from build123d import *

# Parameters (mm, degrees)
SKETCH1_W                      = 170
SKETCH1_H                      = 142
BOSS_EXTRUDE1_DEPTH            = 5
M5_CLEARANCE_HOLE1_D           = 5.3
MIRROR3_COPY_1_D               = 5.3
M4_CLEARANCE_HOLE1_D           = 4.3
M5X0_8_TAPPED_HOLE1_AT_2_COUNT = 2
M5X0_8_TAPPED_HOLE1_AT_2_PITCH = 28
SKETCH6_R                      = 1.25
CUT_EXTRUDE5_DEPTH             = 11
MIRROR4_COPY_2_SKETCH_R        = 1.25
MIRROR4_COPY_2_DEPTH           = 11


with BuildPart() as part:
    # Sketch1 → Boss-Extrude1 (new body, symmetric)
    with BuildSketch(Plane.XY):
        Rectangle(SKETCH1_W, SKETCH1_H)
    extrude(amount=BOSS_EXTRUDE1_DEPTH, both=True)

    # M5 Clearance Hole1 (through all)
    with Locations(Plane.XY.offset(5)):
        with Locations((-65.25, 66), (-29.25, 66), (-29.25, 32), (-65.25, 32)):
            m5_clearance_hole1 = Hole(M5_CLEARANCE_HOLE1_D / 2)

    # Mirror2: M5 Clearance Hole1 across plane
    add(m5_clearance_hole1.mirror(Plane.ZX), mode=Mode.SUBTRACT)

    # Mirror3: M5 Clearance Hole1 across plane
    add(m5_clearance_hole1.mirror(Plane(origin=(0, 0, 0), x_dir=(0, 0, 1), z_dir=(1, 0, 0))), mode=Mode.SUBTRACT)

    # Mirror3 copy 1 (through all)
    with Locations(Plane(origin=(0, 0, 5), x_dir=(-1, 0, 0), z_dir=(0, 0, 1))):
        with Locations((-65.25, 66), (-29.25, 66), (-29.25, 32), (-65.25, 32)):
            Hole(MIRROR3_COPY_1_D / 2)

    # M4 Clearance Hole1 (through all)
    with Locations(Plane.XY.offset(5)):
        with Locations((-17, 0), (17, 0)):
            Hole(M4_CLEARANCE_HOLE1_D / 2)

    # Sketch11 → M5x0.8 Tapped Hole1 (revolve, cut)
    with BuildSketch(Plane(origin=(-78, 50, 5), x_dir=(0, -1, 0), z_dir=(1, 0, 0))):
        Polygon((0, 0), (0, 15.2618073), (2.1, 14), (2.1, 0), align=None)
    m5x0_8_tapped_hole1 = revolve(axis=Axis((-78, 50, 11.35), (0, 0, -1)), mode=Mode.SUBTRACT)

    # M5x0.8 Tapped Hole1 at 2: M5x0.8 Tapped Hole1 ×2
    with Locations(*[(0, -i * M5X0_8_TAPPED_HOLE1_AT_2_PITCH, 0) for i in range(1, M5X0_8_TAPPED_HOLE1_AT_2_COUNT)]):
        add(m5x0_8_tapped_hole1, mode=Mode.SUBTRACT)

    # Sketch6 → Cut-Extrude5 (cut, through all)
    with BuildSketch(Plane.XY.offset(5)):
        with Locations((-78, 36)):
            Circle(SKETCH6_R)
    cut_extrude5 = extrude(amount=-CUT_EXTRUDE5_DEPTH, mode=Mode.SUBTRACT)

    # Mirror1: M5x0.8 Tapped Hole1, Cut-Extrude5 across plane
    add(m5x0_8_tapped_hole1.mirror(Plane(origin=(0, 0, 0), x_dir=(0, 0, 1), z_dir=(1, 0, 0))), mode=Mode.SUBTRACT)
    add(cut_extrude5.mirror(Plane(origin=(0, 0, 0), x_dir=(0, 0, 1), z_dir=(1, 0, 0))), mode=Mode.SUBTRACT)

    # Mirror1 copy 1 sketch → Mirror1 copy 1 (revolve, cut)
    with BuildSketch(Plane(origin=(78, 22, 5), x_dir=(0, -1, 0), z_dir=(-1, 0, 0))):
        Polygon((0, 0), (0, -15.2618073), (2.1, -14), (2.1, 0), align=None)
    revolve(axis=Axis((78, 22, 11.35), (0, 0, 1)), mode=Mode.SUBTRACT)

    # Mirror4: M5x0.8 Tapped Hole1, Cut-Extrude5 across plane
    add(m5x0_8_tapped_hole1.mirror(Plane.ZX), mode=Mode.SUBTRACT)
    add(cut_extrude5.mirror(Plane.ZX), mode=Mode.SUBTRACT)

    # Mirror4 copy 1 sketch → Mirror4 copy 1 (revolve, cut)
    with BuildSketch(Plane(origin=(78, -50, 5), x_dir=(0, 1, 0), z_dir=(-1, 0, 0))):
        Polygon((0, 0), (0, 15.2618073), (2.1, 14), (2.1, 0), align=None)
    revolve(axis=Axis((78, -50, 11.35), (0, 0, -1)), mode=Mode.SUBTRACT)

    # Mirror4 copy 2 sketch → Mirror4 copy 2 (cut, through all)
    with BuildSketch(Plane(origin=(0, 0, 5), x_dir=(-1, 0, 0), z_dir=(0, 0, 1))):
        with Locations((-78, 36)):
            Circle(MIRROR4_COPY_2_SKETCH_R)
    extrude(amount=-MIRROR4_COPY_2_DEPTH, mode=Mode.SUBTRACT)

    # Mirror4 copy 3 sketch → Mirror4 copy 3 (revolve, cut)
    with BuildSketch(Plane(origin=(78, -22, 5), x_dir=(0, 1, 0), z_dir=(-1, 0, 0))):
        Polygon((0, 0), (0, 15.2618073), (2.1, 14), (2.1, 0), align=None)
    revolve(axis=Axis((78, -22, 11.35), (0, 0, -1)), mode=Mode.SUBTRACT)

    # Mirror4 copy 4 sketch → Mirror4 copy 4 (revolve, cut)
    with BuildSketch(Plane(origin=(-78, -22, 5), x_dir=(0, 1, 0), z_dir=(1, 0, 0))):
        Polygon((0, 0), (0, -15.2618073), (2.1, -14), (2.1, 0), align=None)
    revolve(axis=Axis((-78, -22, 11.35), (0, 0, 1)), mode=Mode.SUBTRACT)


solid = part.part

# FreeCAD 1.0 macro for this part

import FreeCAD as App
import Part
import Sketcher

V = App.Vector
Q = App.Units.Quantity

doc = App.newDocument("Part")
body = doc.addObject("PartDesign::Body", "Body")

sketch1 = doc.addObject("Sketcher::SketchObject", "Sketch")
body.addObject(sketch1)
sketch1.AttachmentSupport = (doc.XY_Plane, [""])
sketch1.MapMode = "FlatFace"
sketch1.addGeometry([
    Part.LineSegment(V(-85, 71, 0), V(-85, -71, 0)),
    Part.LineSegment(V(-85, -71, 0), V(85, -71, 0)),
    Part.LineSegment(V(85, -71, 0), V(85, 71, 0)),
    Part.LineSegment(V(85, 71, 0), V(-85, 71, 0)),
], False)
sketch1.addConstraint([
    Sketcher.Constraint("Coincident", 0, 2, 1, 1),
    Sketcher.Constraint("Coincident", 1, 2, 2, 1),
    Sketcher.Constraint("Coincident", 2, 2, 3, 1),
    Sketcher.Constraint("Coincident", 3, 2, 0, 1),
    Sketcher.Constraint("Vertical", 0),
    Sketcher.Constraint("Horizontal", 1),
    Sketcher.Constraint("Vertical", 2),
    Sketcher.Constraint("Horizontal", 3),
    Sketcher.Constraint("Symmetric", 0, 2, 2, 2, -1, 1),
    Sketcher.Constraint("DistanceX", 1, 1, 1, 2, Q("170 mm")),
    Sketcher.Constraint("DistanceY", 0, 2, 0, 1, Q("142 mm")),
])
pad1 = doc.addObject("PartDesign::Pad", "Pad")
body.addObject(pad1)
pad1.Profile = sketch1
pad1.Length = 10
pad1.Midplane = True

sketch2 = doc.addObject("Sketcher::SketchObject", "Sketch001")
body.addObject(sketch2)
sketch2.AttachmentSupport = (doc.XY_Plane, [""])
sketch2.MapMode = "FlatFace"
sketch2.AttachmentOffset = App.Placement(V(0, 0, 5), App.Rotation())
sketch2.addGeometry([
    Part.Circle(V(-65.25, 66, 0), V(0, 0, 1), 2.65),
    Part.Circle(V(-29.25, 66, 0), V(0, 0, 1), 2.65),
    Part.Circle(V(-29.25, 32, 0), V(0, 0, 1), 2.65),
    Part.Circle(V(-65.25, 32, 0), V(0, 0, 1), 2.65),
], False)
sketch2.addConstraint([
    Sketcher.Constraint("Equal", 0, 1),
    Sketcher.Constraint("Equal", 1, 2),
    Sketcher.Constraint("Equal", 2, 3),
    Sketcher.Constraint("Horizontal", 0, 3, 1, 3),
    Sketcher.Constraint("Horizontal", 2, 3, 3, 3),
    Sketcher.Constraint("Vertical", 1, 3, 2, 3),
    Sketcher.Constraint("Vertical", 0, 3, 3, 3),
    Sketcher.Constraint("Diameter", 0, Q("5.3 mm")),
    Sketcher.Constraint("DistanceY", -1, 1, 0, 3, Q("66 mm")),
    Sketcher.Constraint("DistanceY", -1, 1, 2, 3, Q("32 mm")),
    Sketcher.Constraint("DistanceX", 0, 3, 1, 3, Q("36 mm")),
    Sketcher.Constraint("DistanceX", 0, 3, -1, 1, Q("65.25 mm")),
])
doc.recompute()
hole = doc.addObject("PartDesign::Hole", "Hole")
body.addObject(hole)
hole.Profile = sketch2
hole.ThreadType = "None"
hole.Diameter = 5.3
hole.DepthType = "ThroughAll"
doc.recompute()

mirrored = doc.addObject("PartDesign::Mirrored", "Mirrored")
body.addObject(mirrored)
mirrored.Originals = [hole]
mirrored.MirrorPlane = (doc.XZ_Plane, [""])
body.Tip = mirrored
doc.recompute()

mirrored2 = doc.addObject("PartDesign::Mirrored", "Mirrored001")
body.addObject(mirrored2)
mirrored2.Originals = [hole]
mirrored2.MirrorPlane = (doc.YZ_Plane, [""])
body.Tip = mirrored2

sketch3 = doc.addObject("Sketcher::SketchObject", "Sketch002")
body.addObject(sketch3)
sketch3.AttachmentSupport = (doc.XY_Plane, [""])
sketch3.MapMode = "FlatFace"
sketch3.AttachmentOffset = App.Placement(V(0, 0, 5), App.Rotation())
sketch3.addGeometry([
    Part.Circle(V(65.25, -66, 0), V(0, 0, 1), 2.65),
    Part.Circle(V(29.25, -66, 0), V(0, 0, 1), 2.65),
    Part.Circle(V(29.25, -32, 0), V(0, 0, 1), 2.65),
    Part.Circle(V(65.25, -32, 0), V(0, 0, 1), 2.65),
], False)
sketch3.addConstraint([
    Sketcher.Constraint("Equal", 0, 1),
    Sketcher.Constraint("Equal", 1, 2),
    Sketcher.Constraint("Equal", 2, 3),
    Sketcher.Constraint("Horizontal", 0, 3, 1, 3),
    Sketcher.Constraint("Horizontal", 2, 3, 3, 3),
    Sketcher.Constraint("Vertical", 1, 3, 2, 3),
    Sketcher.Constraint("Vertical", 0, 3, 3, 3),
    Sketcher.Constraint("Diameter", 0, Q("5.3 mm")),
    Sketcher.Constraint("DistanceY", 0, 3, -1, 1, Q("66 mm")),
    Sketcher.Constraint("DistanceY", 2, 3, -1, 1, Q("32 mm")),
    Sketcher.Constraint("DistanceX", 1, 3, 0, 3, Q("36 mm")),
    Sketcher.Constraint("DistanceX", -1, 1, 0, 3, Q("65.25 mm")),
])
doc.recompute()
hole2 = doc.addObject("PartDesign::Hole", "Hole001")
body.addObject(hole2)
hole2.Profile = sketch3
hole2.ThreadType = "None"
hole2.Diameter = 5.3
hole2.DepthType = "ThroughAll"

sketch4 = doc.addObject("Sketcher::SketchObject", "Sketch003")
body.addObject(sketch4)
sketch4.AttachmentSupport = (doc.XY_Plane, [""])
sketch4.MapMode = "FlatFace"
sketch4.AttachmentOffset = App.Placement(V(0, 0, 5), App.Rotation())
sketch4.addGeometry([
    Part.Circle(V(-17, 0, 0), V(0, 0, 1), 2.15),
    Part.Circle(V(17, 0, 0), V(0, 0, 1), 2.15),
], False)
sketch4.addConstraint([
    Sketcher.Constraint("Equal", 0, 1),
    Sketcher.Constraint("Symmetric", 0, 3, 1, 3, -1, 1),
    Sketcher.Constraint("PointOnObject", 0, 3, -1),
    Sketcher.Constraint("Diameter", 0, Q("4.3 mm")),
    Sketcher.Constraint("DistanceX", 0, 3, -1, 1, Q("17 mm")),
])
doc.recompute()
hole3 = doc.addObject("PartDesign::Hole", "Hole002")
body.addObject(hole3)
hole3.Profile = sketch4
hole3.ThreadType = "None"
hole3.Diameter = 4.3
hole3.DepthType = "ThroughAll"

sketch5 = doc.addObject("Sketcher::SketchObject", "Sketch004")
body.addObject(sketch5)
sketch5.AttachmentSupport = (doc.YZ_Plane, [""])
sketch5.MapMode = "FlatFace"
sketch5.AttachmentOffset = App.Placement(V(0, 0, -78), App.Rotation())
sketch5.addGeometry([
    Part.LineSegment(V(50, -10.261807, 0), V(50, 5, 0)),
    Part.LineSegment(V(50, 5, 0), V(47.9, 5, 0)),
    Part.LineSegment(V(47.9, 5, 0), V(47.9, -9, 0)),
    Part.LineSegment(V(47.9, -9, 0), V(50, -10.261807, 0)),
], False)
sketch5.addGeometry(Part.LineSegment(V(50, 5, 0), V(50, -10.261807, 0)), True)
sketch5.addConstraint([
    Sketcher.Constraint("Coincident", 0, 2, 1, 1),
    Sketcher.Constraint("Coincident", 1, 2, 2, 1),
    Sketcher.Constraint("Coincident", 2, 2, 3, 1),
    Sketcher.Constraint("Coincident", 3, 2, 0, 1),
    Sketcher.Constraint("Vertical", 0),
    Sketcher.Constraint("Horizontal", 1),
    Sketcher.Constraint("Vertical", 2),
    Sketcher.Constraint("Vertical", 4),
    Sketcher.Constraint("Coincident", 4, 1, 0, 2),
    Sketcher.Constraint("Equal", 0, 4),
    Sketcher.Constraint("DistanceY", 2, 2, 2, 1, Q("14 mm")),
    Sketcher.Constraint("Angle", 3, Q("-31 deg")),
    Sketcher.Constraint("DistanceX", 1, 2, 1, 1, Q("2.1 mm")),
    Sketcher.Constraint("DistanceX", -1, 1, 0, 2, Q("50 mm")),
    Sketcher.Constraint("DistanceY", -1, 1, 0, 2, Q("5 mm")),
])
groove = doc.addObject("PartDesign::Groove", "Groove")
body.addObject(groove)
groove.Profile = sketch5
groove.ReferenceAxis = (sketch5, ["Axis0"])
groove.Angle = 360
doc.recompute()

linearpattern = doc.addObject("PartDesign::LinearPattern", "LinearPattern")
body.addObject(linearpattern)
linearpattern.Originals = [groove]
linearpattern.Direction = (doc.Y_Axis, [""])
linearpattern.Mode = "offset"
linearpattern.Offset = 28
linearpattern.Occurrences = 2
linearpattern.Reversed = True
body.Tip = linearpattern

sketch6 = doc.addObject("Sketcher::SketchObject", "Sketch005")
body.addObject(sketch6)
sketch6.AttachmentSupport = (doc.XY_Plane, [""])
sketch6.MapMode = "FlatFace"
sketch6.AttachmentOffset = App.Placement(V(0, 0, 5), App.Rotation())
sketch6.addGeometry(Part.Circle(V(-78, 36, 0), V(0, 0, 1), 1.25), False)
sketch6.addConstraint([
    Sketcher.Constraint("Diameter", 0, Q("2.5 mm")),
    Sketcher.Constraint("DistanceX", 0, 3, -1, 1, Q("78 mm")),
    Sketcher.Constraint("DistanceY", -1, 1, 0, 3, Q("36 mm")),
])
pocket1 = doc.addObject("PartDesign::Pocket", "Pocket")
body.addObject(pocket1)
pocket1.Profile = sketch6
pocket1.Type = "ThroughAll"
doc.recompute()

mirrored3 = doc.addObject("PartDesign::Mirrored", "Mirrored002")
body.addObject(mirrored3)
mirrored3.Originals = [groove, pocket1]
mirrored3.MirrorPlane = (doc.YZ_Plane, [""])
body.Tip = mirrored3

sketch7 = doc.addObject("Sketcher::SketchObject", "Sketch006")
body.addObject(sketch7)
sketch7.AttachmentSupport = (doc.YZ_Plane, [""])
sketch7.MapMode = "FlatFace"
sketch7.AttachmentOffset = App.Placement(V(0, 0, 78), App.Rotation())
sketch7.addGeometry([
    Part.LineSegment(V(22, 5, 0), V(22, -10.261807, 0)),
    Part.LineSegment(V(22, -10.261807, 0), V(19.9, -9, 0)),
    Part.LineSegment(V(19.9, -9, 0), V(19.9, 5, 0)),
    Part.LineSegment(V(19.9, 5, 0), V(22, 5, 0)),
], False)
sketch7.addGeometry(Part.LineSegment(V(22, -10.261807, 0), V(22, 5, 0)), True)
sketch7.addConstraint([
    Sketcher.Constraint("Coincident", 0, 2, 1, 1),
    Sketcher.Constraint("Coincident", 1, 2, 2, 1),
    Sketcher.Constraint("Coincident", 2, 2, 3, 1),
    Sketcher.Constraint("Coincident", 3, 2, 0, 1),
    Sketcher.Constraint("Vertical", 0),
    Sketcher.Constraint("Vertical", 2),
    Sketcher.Constraint("Horizontal", 3),
    Sketcher.Constraint("Vertical", 4),
    Sketcher.Constraint("Coincident", 4, 1, 0, 2),
    Sketcher.Constraint("Horizontal", 2, 2, 4, 2),
    Sketcher.Constraint("DistanceY", 2, 1, 2, 2, Q("14 mm")),
    Sketcher.Constraint("Angle", 1, Q("149 deg")),
    Sketcher.Constraint("DistanceX", 3, 1, 3, 2, Q("2.1 mm")),
    Sketcher.Constraint("DistanceX", -1, 1, 0, 2, Q("22 mm")),
    Sketcher.Constraint("DistanceY", 1, 2, -1, 1, Q("9 mm")),
])
groove2 = doc.addObject("PartDesign::Groove", "Groove001")
body.addObject(groove2)
groove2.Profile = sketch7
groove2.ReferenceAxis = (sketch7, ["Axis0"])
groove2.Angle = 360
doc.recompute()

mirrored4 = doc.addObject("PartDesign::Mirrored", "Mirrored003")
body.addObject(mirrored4)
mirrored4.Originals = [groove, pocket1]
mirrored4.MirrorPlane = (doc.XZ_Plane, [""])
body.Tip = mirrored4

sketch8 = doc.addObject("Sketcher::SketchObject", "Sketch007")
body.addObject(sketch8)
sketch8.AttachmentSupport = (doc.YZ_Plane, [""])
sketch8.MapMode = "FlatFace"
sketch8.AttachmentOffset = App.Placement(V(0, 0, 78), App.Rotation())
sketch8.addGeometry([
    Part.LineSegment(V(-50, -10.261807, 0), V(-50, 5, 0)),
    Part.LineSegment(V(-50, 5, 0), V(-47.9, 5, 0)),
    Part.LineSegment(V(-47.9, 5, 0), V(-47.9, -9, 0)),
    Part.LineSegment(V(-47.9, -9, 0), V(-50, -10.261807, 0)),
], False)
sketch8.addGeometry(Part.LineSegment(V(-50, 5, 0), V(-50, -10.261807, 0)), True)
sketch8.addConstraint([
    Sketcher.Constraint("Coincident", 0, 2, 1, 1),
    Sketcher.Constraint("Coincident", 1, 2, 2, 1),
    Sketcher.Constraint("Coincident", 2, 2, 3, 1),
    Sketcher.Constraint("Coincident", 3, 2, 0, 1),
    Sketcher.Constraint("Vertical", 0),
    Sketcher.Constraint("Horizontal", 1),
    Sketcher.Constraint("Vertical", 2),
    Sketcher.Constraint("Vertical", 4),
    Sketcher.Constraint("Coincident", 4, 1, 0, 2),
    Sketcher.Constraint("Equal", 0, 4),
    Sketcher.Constraint("DistanceY", 2, 2, 2, 1, Q("14 mm")),
    Sketcher.Constraint("Angle", 3, Q("-149 deg")),
    Sketcher.Constraint("DistanceX", 1, 1, 1, 2, Q("2.1 mm")),
    Sketcher.Constraint("DistanceX", 0, 2, -1, 1, Q("50 mm")),
    Sketcher.Constraint("DistanceY", -1, 1, 0, 2, Q("5 mm")),
])
groove3 = doc.addObject("PartDesign::Groove", "Groove002")
body.addObject(groove3)
groove3.Profile = sketch8
groove3.ReferenceAxis = (sketch8, ["Axis0"])
groove3.Angle = 360

sketch9 = doc.addObject("Sketcher::SketchObject", "Sketch008")
body.addObject(sketch9)
sketch9.AttachmentSupport = (doc.XY_Plane, [""])
sketch9.MapMode = "FlatFace"
sketch9.AttachmentOffset = App.Placement(V(0, 0, 5), App.Rotation())
sketch9.addGeometry(Part.Circle(V(78, -36, 0), V(0, 0, 1), 1.25), False)
sketch9.addConstraint([
    Sketcher.Constraint("Diameter", 0, Q("2.5 mm")),
    Sketcher.Constraint("DistanceX", -1, 1, 0, 3, Q("78 mm")),
    Sketcher.Constraint("DistanceY", 0, 3, -1, 1, Q("36 mm")),
])
pocket2 = doc.addObject("PartDesign::Pocket", "Pocket001")
body.addObject(pocket2)
pocket2.Profile = sketch9
pocket2.Type = "ThroughAll"

sketch10 = doc.addObject("Sketcher::SketchObject", "Sketch009")
body.addObject(sketch10)
sketch10.AttachmentSupport = (doc.YZ_Plane, [""])
sketch10.MapMode = "FlatFace"
sketch10.AttachmentOffset = App.Placement(V(0, 0, 78), App.Rotation())
sketch10.addGeometry([
    Part.LineSegment(V(-22, -10.261807, 0), V(-22, 5, 0)),
    Part.LineSegment(V(-22, 5, 0), V(-19.9, 5, 0)),
    Part.LineSegment(V(-19.9, 5, 0), V(-19.9, -9, 0)),
    Part.LineSegment(V(-19.9, -9, 0), V(-22, -10.261807, 0)),
], False)
sketch10.addGeometry(Part.LineSegment(V(-22, 5, 0), V(-22, -10.261807, 0)), True)
sketch10.addConstraint([
    Sketcher.Constraint("Coincident", 0, 2, 1, 1),
    Sketcher.Constraint("Coincident", 1, 2, 2, 1),
    Sketcher.Constraint("Coincident", 2, 2, 3, 1),
    Sketcher.Constraint("Coincident", 3, 2, 0, 1),
    Sketcher.Constraint("Vertical", 0),
    Sketcher.Constraint("Horizontal", 1),
    Sketcher.Constraint("Vertical", 2),
    Sketcher.Constraint("Vertical", 4),
    Sketcher.Constraint("Coincident", 4, 1, 0, 2),
    Sketcher.Constraint("Equal", 0, 4),
    Sketcher.Constraint("DistanceY", 2, 2, 2, 1, Q("14 mm")),
    Sketcher.Constraint("Angle", 3, Q("-149 deg")),
    Sketcher.Constraint("DistanceX", 1, 1, 1, 2, Q("2.1 mm")),
    Sketcher.Constraint("DistanceX", 0, 2, -1, 1, Q("22 mm")),
    Sketcher.Constraint("DistanceY", -1, 1, 0, 2, Q("5 mm")),
])
groove4 = doc.addObject("PartDesign::Groove", "Groove003")
body.addObject(groove4)
groove4.Profile = sketch10
groove4.ReferenceAxis = (sketch10, ["Axis0"])
groove4.Angle = 360

sketch11 = doc.addObject("Sketcher::SketchObject", "Sketch010")
body.addObject(sketch11)
sketch11.AttachmentSupport = (doc.YZ_Plane, [""])
sketch11.MapMode = "FlatFace"
sketch11.AttachmentOffset = App.Placement(V(0, 0, -78), App.Rotation())
sketch11.addGeometry([
    Part.LineSegment(V(-22, 5, 0), V(-22, -10.261807, 0)),
    Part.LineSegment(V(-22, -10.261807, 0), V(-19.9, -9, 0)),
    Part.LineSegment(V(-19.9, -9, 0), V(-19.9, 5, 0)),
    Part.LineSegment(V(-19.9, 5, 0), V(-22, 5, 0)),
], False)
sketch11.addGeometry(Part.LineSegment(V(-22, -10.261807, 0), V(-22, 5, 0)), True)
sketch11.addConstraint([
    Sketcher.Constraint("Coincident", 0, 2, 1, 1),
    Sketcher.Constraint("Coincident", 1, 2, 2, 1),
    Sketcher.Constraint("Coincident", 2, 2, 3, 1),
    Sketcher.Constraint("Coincident", 3, 2, 0, 1),
    Sketcher.Constraint("Vertical", 0),
    Sketcher.Constraint("Vertical", 2),
    Sketcher.Constraint("Horizontal", 3),
    Sketcher.Constraint("Vertical", 4),
    Sketcher.Constraint("Coincident", 4, 1, 0, 2),
    Sketcher.Constraint("Horizontal", 2, 2, 4, 2),
    Sketcher.Constraint("DistanceY", 2, 1, 2, 2, Q("14 mm")),
    Sketcher.Constraint("Angle", 1, Q("31 deg")),
    Sketcher.Constraint("DistanceX", 3, 2, 3, 1, Q("2.1 mm")),
    Sketcher.Constraint("DistanceX", 0, 2, -1, 1, Q("22 mm")),
    Sketcher.Constraint("DistanceY", 1, 2, -1, 1, Q("9 mm")),
])
groove5 = doc.addObject("PartDesign::Groove", "Groove004")
body.addObject(groove5)
groove5.Profile = sketch11
groove5.ReferenceAxis = (sketch11, ["Axis0"])
groove5.Angle = 360

doc.recompute()
